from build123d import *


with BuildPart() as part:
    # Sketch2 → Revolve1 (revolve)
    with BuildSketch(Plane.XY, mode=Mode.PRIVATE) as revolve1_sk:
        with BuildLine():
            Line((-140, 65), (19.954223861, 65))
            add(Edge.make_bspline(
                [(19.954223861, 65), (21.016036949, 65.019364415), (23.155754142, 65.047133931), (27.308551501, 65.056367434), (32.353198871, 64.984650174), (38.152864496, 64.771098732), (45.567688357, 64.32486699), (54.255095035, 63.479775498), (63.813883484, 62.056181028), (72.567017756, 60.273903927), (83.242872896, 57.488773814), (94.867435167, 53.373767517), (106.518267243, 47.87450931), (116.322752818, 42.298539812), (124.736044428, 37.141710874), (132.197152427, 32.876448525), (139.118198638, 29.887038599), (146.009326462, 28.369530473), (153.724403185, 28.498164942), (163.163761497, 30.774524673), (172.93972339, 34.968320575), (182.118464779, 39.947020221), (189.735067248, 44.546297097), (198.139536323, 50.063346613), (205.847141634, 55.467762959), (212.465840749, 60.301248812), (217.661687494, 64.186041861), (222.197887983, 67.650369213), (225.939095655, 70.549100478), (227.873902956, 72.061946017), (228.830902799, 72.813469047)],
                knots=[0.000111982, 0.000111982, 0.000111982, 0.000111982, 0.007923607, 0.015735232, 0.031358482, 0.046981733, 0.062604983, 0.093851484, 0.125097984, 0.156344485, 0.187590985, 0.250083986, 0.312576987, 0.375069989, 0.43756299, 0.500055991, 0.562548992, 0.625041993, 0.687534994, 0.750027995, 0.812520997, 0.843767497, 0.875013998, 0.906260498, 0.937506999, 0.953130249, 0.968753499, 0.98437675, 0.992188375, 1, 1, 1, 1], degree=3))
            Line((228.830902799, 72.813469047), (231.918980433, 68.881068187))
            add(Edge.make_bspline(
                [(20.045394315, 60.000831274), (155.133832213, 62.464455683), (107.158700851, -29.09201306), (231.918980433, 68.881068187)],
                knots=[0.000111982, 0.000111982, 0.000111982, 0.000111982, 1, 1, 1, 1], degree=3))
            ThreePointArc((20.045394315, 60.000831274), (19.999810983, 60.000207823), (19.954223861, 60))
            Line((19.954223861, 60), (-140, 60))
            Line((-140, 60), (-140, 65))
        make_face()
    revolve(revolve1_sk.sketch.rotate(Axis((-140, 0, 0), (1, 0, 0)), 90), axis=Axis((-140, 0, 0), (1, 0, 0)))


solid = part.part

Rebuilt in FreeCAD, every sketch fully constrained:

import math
import FreeCAD as App
import Part
import Sketcher
from FreeCAD import Vector

doc = App.newDocument("Part")
body = doc.addObject("PartDesign::Body", "Body")

# Sketch on XY plane
sketch1 = body.newObject("Sketcher::SketchObject", "Sketch")
sketch1.AttachmentSupport = (doc.getObject("XY_Plane"), [""])
sketch1.MapMode = "FlatFace"
sketch1.addGeometry([
    Part.LineSegment(Vector(19.954224, 65, 0), Vector(-140, 65, 0)),  # 0
    Part.LineSegment(Vector(-140, 65, 0), Vector(-140, 60, 0)),  # 1
    Part.LineSegment(Vector(-140, 60, 0), Vector(19.954224, 60, 0)),  # 2
    Part.ArcOfCircle(Part.Circle(Vector(19.954224, 65.000006, 0), Vector(0, 0, 1), 5.000006), math.radians(-90), math.radians(-88.955206)),  # 3
    Part.BSplineCurve([Vector(20.045394, 60.000831, 0), Vector(155.133832, 62.464456, 0), Vector(107.158701, -29.092013, 0), Vector(231.91898, 68.881068, 0)], [4, 4], [0.000111982, 1], False, 3, [1, 1, 1, 1], False),  # 4
    Part.LineSegment(Vector(231.91898, 68.881068, 0), Vector(228.830903, 72.813469, 0)),  # 5
    Part.BSplineCurve([Vector(19.954224, 65, 0), Vector(21.016037, 65.019364, 0), Vector(23.155754, 65.047134, 0), Vector(27.308552, 65.056367, 0), Vector(32.353199, 64.98465, 0), Vector(38.152864, 64.771099, 0), Vector(45.567688, 64.324867, 0), Vector(54.255095, 63.479775, 0), Vector(63.813883, 62.056181, 0), Vector(72.567018, 60.273904, 0), Vector(83.242873, 57.488774, 0), Vector(94.867435, 53.373768, 0), Vector(106.518267, 47.874509, 0), Vector(116.322753, 42.29854, 0), Vector(124.736044, 37.141711, 0), Vector(132.197152, 32.876449, 0), Vector(139.118199, 29.887039, 0), Vector(146.009326, 28.36953, 0), Vector(153.724403, 28.498165, 0), Vector(163.163761, 30.774525, 0), Vector(172.939723, 34.968321, 0), Vector(182.118465, 39.94702, 0), Vector(189.735067, 44.546297, 0), Vector(198.139536, 50.063347, 0), Vector(205.847142, 55.467763, 0), Vector(212.465841, 60.301249, 0), Vector(217.661687, 64.186042, 0), Vector(222.197888, 67.650369, 0), Vector(225.939096, 70.5491, 0), Vector(227.873903, 72.061946, 0), Vector(228.830903, 72.813469, 0)], [4, 1, 1, 1, 1, 1, 1, 1, 1, 1, 1, 1, 1, 1, 1, 1, 1, 1, 1, 1, 1, 1, 1, 1, 1, 1, 1, 1, 4], [0.000111982, 0.007923607, 0.015735232, 0.031358482, 0.046981733, 0.062604983, 0.093851484, 0.125097984, 0.156344485, 0.187590985, 0.250083986, 0.312576987, 0.375069989, 0.43756299, 0.500055991, 0.562548992, 0.625041993, 0.687534994, 0.750027995, 0.812520997, 0.843767497, 0.875013998, 0.906260498, 0.937506999, 0.953130249, 0.968753499, 0.98437675, 0.992188375, 1], False, 3, [1, 1, 1, 1, 1, 1, 1, 1, 1, 1, 1, 1, 1, 1, 1, 1, 1, 1, 1, 1, 1, 1, 1, 1, 1, 1, 1, 1, 1, 1, 1], False),  # 6
], False)
sketch1.addConstraint([
    Sketcher.Constraint("Block", 4),
    Sketcher.Constraint("Block", 6),
    Sketcher.Constraint("Coincident", 0, 2, 1, 1),
    Sketcher.Constraint("Coincident", 1, 2, 2, 1),
    Sketcher.Constraint("Coincident", 2, 2, 3, 1),
    Sketcher.Constraint("Coincident", 3, 2, 4, 1),
    Sketcher.Constraint("Coincident", 4, 2, 5, 1),
    Sketcher.Constraint("Coincident", 5, 2, 6, 2),
    Sketcher.Constraint("Coincident", 6, 1, 0, 1),
    Sketcher.Constraint("Horizontal", 0),
    Sketcher.Constraint("Vertical", 1),
    Sketcher.Constraint("Horizontal", 2),
    Sketcher.Constraint("DistanceY", 1, 2, 1, 1, 5.0),
    Sketcher.Constraint("DistanceX", 0, 2, -1, 1, 140.0),
    Sketcher.Constraint("Radius", 3, 5.000006),
    Sketcher.Constraint("DistanceX", 2, 1, 2, 2, 159.954224),
])
revolution = body.newObject("PartDesign::Revolution", "Revolution")
revolution.Profile = sketch1
revolution.ReferenceAxis = (sketch1, ["H_Axis"])
revolution.Angle = 360

doc.recompute()
